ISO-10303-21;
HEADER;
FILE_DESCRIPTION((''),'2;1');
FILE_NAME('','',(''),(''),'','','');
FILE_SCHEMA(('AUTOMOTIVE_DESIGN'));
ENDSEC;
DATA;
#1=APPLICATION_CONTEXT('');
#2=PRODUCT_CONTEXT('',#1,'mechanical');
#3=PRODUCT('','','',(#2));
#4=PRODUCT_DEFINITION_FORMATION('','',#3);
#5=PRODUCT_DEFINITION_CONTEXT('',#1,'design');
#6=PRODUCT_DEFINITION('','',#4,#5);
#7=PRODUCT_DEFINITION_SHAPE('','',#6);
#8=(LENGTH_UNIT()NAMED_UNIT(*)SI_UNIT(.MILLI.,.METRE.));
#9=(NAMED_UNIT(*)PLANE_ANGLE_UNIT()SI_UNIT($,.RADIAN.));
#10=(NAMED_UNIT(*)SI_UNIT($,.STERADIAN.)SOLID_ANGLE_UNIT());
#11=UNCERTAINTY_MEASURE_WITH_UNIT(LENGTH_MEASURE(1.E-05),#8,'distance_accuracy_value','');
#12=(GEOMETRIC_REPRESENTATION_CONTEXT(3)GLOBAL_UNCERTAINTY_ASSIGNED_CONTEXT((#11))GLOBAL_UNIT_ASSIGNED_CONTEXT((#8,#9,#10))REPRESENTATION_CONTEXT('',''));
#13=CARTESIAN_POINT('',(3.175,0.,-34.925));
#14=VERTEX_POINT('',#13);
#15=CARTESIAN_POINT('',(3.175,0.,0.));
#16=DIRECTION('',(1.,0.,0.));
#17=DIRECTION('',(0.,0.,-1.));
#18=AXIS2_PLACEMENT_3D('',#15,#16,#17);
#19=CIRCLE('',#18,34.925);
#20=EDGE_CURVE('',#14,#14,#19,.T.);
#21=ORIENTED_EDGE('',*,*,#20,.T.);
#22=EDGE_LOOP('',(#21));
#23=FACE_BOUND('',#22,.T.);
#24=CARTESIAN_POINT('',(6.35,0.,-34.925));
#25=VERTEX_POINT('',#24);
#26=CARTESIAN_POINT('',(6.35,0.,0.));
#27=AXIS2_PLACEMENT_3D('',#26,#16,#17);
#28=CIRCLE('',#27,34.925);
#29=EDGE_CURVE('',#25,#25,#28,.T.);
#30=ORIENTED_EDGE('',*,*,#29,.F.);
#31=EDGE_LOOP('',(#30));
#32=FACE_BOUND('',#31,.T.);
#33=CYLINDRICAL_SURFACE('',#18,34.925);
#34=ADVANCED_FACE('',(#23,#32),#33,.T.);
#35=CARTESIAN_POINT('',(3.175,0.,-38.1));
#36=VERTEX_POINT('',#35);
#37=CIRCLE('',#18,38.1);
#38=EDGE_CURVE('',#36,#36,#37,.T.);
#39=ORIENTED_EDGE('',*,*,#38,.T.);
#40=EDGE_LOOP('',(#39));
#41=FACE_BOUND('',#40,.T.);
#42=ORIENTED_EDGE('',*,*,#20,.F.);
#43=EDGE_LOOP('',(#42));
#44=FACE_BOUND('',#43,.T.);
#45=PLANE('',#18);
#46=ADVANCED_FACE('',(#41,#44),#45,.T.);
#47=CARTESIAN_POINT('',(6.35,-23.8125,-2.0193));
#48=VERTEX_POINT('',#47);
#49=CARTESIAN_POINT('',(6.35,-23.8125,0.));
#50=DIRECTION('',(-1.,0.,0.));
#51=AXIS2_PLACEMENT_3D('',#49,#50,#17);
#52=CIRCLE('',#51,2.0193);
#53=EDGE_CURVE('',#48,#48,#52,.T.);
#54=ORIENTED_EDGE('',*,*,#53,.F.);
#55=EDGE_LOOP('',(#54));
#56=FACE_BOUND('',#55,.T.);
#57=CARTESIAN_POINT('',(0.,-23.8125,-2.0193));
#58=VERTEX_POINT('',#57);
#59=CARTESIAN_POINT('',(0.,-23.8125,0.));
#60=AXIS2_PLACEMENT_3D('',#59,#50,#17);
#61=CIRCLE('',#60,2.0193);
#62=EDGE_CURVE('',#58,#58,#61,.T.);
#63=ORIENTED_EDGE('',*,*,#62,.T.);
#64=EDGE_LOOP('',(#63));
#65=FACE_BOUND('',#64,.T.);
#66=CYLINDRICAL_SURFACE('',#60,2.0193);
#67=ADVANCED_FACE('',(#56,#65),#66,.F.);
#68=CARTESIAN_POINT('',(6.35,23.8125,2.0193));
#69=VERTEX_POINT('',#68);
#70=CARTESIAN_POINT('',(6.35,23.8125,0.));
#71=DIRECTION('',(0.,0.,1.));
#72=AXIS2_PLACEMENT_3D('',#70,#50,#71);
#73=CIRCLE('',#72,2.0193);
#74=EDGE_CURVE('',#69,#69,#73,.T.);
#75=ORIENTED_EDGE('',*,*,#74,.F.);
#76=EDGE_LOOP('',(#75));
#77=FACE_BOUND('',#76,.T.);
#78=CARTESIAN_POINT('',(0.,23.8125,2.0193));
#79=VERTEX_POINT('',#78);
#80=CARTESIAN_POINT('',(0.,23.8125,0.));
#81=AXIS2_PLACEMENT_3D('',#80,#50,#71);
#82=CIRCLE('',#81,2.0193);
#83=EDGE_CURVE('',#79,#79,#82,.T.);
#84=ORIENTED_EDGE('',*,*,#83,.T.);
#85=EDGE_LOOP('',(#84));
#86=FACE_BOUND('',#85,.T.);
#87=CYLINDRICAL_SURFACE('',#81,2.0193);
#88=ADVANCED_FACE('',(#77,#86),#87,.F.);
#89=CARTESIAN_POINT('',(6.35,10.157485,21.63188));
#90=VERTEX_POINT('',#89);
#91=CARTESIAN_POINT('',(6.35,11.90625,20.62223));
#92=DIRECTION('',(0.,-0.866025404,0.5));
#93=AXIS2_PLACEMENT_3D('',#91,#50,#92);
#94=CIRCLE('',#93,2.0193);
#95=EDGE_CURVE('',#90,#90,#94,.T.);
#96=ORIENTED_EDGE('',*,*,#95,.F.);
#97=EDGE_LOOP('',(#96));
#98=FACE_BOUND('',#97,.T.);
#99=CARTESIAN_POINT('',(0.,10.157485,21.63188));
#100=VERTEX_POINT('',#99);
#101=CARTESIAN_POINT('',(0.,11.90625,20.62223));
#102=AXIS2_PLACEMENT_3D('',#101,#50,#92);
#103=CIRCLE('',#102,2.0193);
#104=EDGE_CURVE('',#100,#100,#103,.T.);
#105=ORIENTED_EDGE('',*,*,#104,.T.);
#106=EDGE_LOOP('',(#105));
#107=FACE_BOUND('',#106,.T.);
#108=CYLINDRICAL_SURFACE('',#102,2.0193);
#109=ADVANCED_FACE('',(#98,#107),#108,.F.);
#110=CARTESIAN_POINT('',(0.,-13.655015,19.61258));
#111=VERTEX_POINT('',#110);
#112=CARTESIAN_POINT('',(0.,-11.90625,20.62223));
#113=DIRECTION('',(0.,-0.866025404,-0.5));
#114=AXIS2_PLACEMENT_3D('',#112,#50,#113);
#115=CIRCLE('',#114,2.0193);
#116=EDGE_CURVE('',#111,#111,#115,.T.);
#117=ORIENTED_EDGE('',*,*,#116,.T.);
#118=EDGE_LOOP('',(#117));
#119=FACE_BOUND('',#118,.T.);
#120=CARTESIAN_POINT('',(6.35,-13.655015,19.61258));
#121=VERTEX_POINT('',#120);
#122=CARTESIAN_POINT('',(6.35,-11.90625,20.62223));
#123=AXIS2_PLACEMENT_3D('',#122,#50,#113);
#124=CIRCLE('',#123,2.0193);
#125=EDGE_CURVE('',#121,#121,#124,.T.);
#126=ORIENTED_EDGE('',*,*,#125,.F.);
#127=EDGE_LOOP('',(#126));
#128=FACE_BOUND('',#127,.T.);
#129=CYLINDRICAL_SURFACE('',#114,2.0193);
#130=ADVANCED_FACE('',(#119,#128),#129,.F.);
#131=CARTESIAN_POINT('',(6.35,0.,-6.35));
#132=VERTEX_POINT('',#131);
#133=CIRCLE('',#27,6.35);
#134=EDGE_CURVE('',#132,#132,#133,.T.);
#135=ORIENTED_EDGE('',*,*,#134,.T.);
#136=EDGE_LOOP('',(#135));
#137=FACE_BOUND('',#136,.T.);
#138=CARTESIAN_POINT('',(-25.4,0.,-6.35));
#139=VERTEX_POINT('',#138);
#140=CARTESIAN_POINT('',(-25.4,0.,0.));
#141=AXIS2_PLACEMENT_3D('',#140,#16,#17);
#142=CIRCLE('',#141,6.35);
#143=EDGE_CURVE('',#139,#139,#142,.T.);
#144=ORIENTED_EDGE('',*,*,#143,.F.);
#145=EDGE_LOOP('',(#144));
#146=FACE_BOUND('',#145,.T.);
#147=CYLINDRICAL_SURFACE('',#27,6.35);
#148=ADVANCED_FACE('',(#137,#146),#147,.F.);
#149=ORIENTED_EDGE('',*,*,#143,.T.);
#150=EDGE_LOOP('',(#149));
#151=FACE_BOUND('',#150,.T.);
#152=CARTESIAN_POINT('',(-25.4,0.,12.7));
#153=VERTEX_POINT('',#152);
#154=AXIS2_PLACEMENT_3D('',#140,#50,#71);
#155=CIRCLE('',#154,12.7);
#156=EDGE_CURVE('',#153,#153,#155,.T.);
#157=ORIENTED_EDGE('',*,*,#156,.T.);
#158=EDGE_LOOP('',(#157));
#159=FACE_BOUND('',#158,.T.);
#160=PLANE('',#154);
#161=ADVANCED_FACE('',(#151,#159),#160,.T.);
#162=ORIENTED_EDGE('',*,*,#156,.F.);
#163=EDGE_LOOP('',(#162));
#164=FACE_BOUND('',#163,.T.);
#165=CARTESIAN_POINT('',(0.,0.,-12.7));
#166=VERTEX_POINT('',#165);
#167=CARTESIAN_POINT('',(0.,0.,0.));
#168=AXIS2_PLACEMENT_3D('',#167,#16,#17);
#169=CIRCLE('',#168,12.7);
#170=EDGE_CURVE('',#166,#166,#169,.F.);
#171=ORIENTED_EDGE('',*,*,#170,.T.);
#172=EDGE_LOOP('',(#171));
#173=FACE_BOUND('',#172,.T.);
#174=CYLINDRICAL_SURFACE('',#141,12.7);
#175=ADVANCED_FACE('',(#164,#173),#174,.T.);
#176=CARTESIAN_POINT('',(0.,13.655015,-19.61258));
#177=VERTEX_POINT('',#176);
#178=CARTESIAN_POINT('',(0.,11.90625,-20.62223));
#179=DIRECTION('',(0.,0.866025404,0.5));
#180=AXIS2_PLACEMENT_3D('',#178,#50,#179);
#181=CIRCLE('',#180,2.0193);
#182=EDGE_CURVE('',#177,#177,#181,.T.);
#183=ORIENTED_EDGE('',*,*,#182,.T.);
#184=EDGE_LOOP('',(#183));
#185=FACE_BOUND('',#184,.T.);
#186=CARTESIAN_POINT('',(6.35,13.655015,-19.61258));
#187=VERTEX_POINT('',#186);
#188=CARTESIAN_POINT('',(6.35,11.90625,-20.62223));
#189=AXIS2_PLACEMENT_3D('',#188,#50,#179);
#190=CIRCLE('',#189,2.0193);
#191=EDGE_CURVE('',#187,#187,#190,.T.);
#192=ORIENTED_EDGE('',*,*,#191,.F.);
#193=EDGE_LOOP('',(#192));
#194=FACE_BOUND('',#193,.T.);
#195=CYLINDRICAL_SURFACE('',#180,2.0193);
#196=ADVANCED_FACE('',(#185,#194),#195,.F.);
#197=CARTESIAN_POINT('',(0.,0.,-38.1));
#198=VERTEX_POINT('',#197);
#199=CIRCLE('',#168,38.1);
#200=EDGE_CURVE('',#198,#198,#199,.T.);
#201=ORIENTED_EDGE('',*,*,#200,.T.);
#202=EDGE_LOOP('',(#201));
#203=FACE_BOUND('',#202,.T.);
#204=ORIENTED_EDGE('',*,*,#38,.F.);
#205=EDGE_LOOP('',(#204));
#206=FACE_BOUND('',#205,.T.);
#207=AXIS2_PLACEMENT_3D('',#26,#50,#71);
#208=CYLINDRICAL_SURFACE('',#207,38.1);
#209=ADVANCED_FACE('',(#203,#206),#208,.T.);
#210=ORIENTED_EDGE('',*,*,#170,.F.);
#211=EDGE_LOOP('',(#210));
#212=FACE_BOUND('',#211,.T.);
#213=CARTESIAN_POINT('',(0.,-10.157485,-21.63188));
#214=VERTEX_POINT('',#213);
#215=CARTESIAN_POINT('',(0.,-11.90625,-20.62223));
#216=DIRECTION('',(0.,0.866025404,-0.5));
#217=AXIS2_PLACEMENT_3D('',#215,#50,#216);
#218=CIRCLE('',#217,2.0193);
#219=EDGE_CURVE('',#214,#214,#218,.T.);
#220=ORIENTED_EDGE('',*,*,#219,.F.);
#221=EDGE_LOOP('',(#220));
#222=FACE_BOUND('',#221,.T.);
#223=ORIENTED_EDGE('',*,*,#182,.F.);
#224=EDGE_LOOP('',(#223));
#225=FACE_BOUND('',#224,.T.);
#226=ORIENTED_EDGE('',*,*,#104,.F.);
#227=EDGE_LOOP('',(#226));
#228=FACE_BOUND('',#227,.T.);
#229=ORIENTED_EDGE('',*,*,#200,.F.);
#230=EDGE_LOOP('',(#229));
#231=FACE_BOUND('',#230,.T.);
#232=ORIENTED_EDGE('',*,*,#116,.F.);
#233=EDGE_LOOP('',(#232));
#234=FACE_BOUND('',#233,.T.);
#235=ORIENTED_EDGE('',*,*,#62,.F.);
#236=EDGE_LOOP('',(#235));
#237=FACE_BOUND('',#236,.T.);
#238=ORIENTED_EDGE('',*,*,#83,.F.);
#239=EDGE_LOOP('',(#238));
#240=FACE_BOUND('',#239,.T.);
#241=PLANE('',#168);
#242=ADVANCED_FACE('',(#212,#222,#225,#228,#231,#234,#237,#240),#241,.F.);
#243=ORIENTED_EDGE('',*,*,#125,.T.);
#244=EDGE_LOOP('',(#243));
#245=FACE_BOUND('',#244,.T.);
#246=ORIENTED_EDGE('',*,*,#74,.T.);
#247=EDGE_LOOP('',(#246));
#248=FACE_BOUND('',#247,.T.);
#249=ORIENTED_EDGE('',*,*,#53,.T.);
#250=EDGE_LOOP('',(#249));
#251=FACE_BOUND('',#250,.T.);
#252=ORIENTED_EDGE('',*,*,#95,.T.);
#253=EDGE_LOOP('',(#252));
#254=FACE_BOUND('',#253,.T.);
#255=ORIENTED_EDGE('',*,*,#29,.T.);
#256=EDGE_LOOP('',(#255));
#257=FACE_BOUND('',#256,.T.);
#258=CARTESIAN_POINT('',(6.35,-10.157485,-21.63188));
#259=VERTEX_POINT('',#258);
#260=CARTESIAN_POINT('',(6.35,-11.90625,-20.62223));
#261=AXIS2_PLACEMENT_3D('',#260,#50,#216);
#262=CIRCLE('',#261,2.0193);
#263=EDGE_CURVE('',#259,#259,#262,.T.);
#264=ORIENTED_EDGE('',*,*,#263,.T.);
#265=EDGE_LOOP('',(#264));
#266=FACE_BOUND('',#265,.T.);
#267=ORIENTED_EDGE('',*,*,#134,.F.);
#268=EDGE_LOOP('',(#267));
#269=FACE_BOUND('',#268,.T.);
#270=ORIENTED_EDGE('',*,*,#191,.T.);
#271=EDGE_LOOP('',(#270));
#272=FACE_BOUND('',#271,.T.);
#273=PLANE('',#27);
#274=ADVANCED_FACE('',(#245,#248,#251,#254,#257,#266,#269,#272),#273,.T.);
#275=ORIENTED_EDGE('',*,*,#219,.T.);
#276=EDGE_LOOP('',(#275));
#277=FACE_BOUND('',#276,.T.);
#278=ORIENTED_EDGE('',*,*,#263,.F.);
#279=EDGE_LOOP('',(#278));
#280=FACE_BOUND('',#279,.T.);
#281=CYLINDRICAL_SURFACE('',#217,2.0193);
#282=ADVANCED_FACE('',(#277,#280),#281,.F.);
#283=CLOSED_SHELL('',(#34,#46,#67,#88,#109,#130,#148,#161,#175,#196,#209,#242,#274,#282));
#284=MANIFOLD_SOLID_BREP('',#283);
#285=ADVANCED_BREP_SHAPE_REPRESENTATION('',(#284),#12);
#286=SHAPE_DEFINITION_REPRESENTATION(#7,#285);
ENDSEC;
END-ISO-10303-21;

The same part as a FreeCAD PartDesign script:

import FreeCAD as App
import Part
import Sketcher
Q = App.Units.Quantity

doc = App.newDocument("Part")
body = doc.addObject("PartDesign::Body", "Body")

# Sketch on YZ plane
sketch1 = body.newObject("Sketcher::SketchObject", "Sketch")
sketch1.AttachmentSupport = (doc.getObject("YZ_Plane"), [""])
sketch1.MapMode = "FlatFace"
sketch1.addGeometry(Part.Circle(App.Vector(0, 0, 0), App.Vector(0, 0, 1), 38), False)
sketch1.addConstraint([
    Sketcher.Constraint("Coincident", 0, 3, -1, 1),
    Sketcher.Constraint("Diameter", 0, Q("3 in")),
])
pad1 = body.newObject("PartDesign::Pad", "Pad")
pad1.Profile = sketch1
pad1.Length = Q("0.25 in")

# Sketch on YZ plane
sketch2 = body.newObject("Sketcher::SketchObject", "Sketch001")
sketch2.AttachmentSupport = (doc.getObject("YZ_Plane"), [""])
sketch2.MapMode = "FlatFace"
sketch2.AttachmentOffset = App.Placement(App.Vector(0, 0, 0.25 * 25.4), App.Rotation())
sketch2.addGeometry([
    Part.Circle(App.Vector(0, 0, 0), App.Vector(0, 0, 1), 38),
    Part.Circle(App.Vector(0, 0, 0), App.Vector(0, 0, 1), 35),
], False)
sketch2.addConstraint([
    Sketcher.Constraint("Coincident", 0, 3, -1, 1),
    Sketcher.Constraint("Coincident", 1, 3, -1, 1),
    Sketcher.Constraint("Diameter", 0, Q("3 in")),
    Sketcher.Constraint("Diameter", 1, Q("2.75 in")),
])
pocket1 = body.newObject("PartDesign::Pocket", "Pocket")
pocket1.Profile = sketch2
pocket1.Length = Q("0.125 in")

# Sketch on YZ plane
sketch3 = body.newObject("Sketcher::SketchObject", "Sketch002")
sketch3.AttachmentSupport = (doc.getObject("YZ_Plane"), [""])
sketch3.MapMode = "FlatFace"
sketch3.addGeometry(Part.Circle(App.Vector(0, 0, 0), App.Vector(0, 0, 1), 13), False)
sketch3.addConstraint([
    Sketcher.Constraint("Coincident", 0, 3, -1, 1),
    Sketcher.Constraint("Diameter", 0, Q("1 in")),
])
pad2 = body.newObject("PartDesign::Pad", "Pad001")
pad2.Profile = sketch3
pad2.Length = Q("1 in")
pad2.Reversed = True

# Sketch on YZ plane
sketch4 = body.newObject("Sketcher::SketchObject", "Sketch003")
sketch4.AttachmentSupport = (doc.getObject("YZ_Plane"), [""])
sketch4.MapMode = "FlatFace"
sketch4.AttachmentOffset = App.Placement(App.Vector(0, 0, 0.25 * 25.4), App.Rotation())
sketch4.addGeometry(Part.Circle(App.Vector(0, 0, 0), App.Vector(0, 0, 1), 6), False)
sketch4.addConstraint([
    Sketcher.Constraint("Coincident", 0, 3, -1, 1),
    Sketcher.Constraint("Diameter", 0, Q("0.5 in")),
])
doc.recompute()
hole = body.newObject("PartDesign::Hole", "Hole")
hole.Profile = sketch4
hole.ThreadType = "None"
hole.Diameter = Q("0.5 in")
hole.DepthType = "ThroughAll"

# Sketch on YZ plane
sketch5 = body.newObject("Sketcher::SketchObject", "Sketch004")
sketch5.AttachmentSupport = (doc.getObject("YZ_Plane"), [""])
sketch5.MapMode = "FlatFace"
sketch5.addGeometry(Part.Circle(App.Vector(23.8, 0, 0), App.Vector(0, 0, 1), 2), False)
sketch5.addConstraint([
    Sketcher.Constraint("PointOnObject", 0, 3, -1),
    Sketcher.Constraint("Diameter", 0, Q("0.159 in")),
    Sketcher.Constraint("DistanceX", -1, 1, 0, 3, Q("0.9375 in")),
])
doc.recompute()
hole2 = body.newObject("PartDesign::Hole", "Hole001")
hole2.Profile = sketch5
hole2.ThreadType = "None"
hole2.Diameter = Q("0.159 in")
hole2.DepthType = "ThroughAll"
hole2.Reversed = True
doc.recompute()

polarpattern = body.newObject("PartDesign::PolarPattern", "PolarPattern")
polarpattern.Originals = [hole2]
polarpattern.Axis = (doc.getObject("X_Axis"), [""])
polarpattern.Angle = 360
polarpattern.Occurrences = 6
body.Tip = polarpattern

doc.recompute()
